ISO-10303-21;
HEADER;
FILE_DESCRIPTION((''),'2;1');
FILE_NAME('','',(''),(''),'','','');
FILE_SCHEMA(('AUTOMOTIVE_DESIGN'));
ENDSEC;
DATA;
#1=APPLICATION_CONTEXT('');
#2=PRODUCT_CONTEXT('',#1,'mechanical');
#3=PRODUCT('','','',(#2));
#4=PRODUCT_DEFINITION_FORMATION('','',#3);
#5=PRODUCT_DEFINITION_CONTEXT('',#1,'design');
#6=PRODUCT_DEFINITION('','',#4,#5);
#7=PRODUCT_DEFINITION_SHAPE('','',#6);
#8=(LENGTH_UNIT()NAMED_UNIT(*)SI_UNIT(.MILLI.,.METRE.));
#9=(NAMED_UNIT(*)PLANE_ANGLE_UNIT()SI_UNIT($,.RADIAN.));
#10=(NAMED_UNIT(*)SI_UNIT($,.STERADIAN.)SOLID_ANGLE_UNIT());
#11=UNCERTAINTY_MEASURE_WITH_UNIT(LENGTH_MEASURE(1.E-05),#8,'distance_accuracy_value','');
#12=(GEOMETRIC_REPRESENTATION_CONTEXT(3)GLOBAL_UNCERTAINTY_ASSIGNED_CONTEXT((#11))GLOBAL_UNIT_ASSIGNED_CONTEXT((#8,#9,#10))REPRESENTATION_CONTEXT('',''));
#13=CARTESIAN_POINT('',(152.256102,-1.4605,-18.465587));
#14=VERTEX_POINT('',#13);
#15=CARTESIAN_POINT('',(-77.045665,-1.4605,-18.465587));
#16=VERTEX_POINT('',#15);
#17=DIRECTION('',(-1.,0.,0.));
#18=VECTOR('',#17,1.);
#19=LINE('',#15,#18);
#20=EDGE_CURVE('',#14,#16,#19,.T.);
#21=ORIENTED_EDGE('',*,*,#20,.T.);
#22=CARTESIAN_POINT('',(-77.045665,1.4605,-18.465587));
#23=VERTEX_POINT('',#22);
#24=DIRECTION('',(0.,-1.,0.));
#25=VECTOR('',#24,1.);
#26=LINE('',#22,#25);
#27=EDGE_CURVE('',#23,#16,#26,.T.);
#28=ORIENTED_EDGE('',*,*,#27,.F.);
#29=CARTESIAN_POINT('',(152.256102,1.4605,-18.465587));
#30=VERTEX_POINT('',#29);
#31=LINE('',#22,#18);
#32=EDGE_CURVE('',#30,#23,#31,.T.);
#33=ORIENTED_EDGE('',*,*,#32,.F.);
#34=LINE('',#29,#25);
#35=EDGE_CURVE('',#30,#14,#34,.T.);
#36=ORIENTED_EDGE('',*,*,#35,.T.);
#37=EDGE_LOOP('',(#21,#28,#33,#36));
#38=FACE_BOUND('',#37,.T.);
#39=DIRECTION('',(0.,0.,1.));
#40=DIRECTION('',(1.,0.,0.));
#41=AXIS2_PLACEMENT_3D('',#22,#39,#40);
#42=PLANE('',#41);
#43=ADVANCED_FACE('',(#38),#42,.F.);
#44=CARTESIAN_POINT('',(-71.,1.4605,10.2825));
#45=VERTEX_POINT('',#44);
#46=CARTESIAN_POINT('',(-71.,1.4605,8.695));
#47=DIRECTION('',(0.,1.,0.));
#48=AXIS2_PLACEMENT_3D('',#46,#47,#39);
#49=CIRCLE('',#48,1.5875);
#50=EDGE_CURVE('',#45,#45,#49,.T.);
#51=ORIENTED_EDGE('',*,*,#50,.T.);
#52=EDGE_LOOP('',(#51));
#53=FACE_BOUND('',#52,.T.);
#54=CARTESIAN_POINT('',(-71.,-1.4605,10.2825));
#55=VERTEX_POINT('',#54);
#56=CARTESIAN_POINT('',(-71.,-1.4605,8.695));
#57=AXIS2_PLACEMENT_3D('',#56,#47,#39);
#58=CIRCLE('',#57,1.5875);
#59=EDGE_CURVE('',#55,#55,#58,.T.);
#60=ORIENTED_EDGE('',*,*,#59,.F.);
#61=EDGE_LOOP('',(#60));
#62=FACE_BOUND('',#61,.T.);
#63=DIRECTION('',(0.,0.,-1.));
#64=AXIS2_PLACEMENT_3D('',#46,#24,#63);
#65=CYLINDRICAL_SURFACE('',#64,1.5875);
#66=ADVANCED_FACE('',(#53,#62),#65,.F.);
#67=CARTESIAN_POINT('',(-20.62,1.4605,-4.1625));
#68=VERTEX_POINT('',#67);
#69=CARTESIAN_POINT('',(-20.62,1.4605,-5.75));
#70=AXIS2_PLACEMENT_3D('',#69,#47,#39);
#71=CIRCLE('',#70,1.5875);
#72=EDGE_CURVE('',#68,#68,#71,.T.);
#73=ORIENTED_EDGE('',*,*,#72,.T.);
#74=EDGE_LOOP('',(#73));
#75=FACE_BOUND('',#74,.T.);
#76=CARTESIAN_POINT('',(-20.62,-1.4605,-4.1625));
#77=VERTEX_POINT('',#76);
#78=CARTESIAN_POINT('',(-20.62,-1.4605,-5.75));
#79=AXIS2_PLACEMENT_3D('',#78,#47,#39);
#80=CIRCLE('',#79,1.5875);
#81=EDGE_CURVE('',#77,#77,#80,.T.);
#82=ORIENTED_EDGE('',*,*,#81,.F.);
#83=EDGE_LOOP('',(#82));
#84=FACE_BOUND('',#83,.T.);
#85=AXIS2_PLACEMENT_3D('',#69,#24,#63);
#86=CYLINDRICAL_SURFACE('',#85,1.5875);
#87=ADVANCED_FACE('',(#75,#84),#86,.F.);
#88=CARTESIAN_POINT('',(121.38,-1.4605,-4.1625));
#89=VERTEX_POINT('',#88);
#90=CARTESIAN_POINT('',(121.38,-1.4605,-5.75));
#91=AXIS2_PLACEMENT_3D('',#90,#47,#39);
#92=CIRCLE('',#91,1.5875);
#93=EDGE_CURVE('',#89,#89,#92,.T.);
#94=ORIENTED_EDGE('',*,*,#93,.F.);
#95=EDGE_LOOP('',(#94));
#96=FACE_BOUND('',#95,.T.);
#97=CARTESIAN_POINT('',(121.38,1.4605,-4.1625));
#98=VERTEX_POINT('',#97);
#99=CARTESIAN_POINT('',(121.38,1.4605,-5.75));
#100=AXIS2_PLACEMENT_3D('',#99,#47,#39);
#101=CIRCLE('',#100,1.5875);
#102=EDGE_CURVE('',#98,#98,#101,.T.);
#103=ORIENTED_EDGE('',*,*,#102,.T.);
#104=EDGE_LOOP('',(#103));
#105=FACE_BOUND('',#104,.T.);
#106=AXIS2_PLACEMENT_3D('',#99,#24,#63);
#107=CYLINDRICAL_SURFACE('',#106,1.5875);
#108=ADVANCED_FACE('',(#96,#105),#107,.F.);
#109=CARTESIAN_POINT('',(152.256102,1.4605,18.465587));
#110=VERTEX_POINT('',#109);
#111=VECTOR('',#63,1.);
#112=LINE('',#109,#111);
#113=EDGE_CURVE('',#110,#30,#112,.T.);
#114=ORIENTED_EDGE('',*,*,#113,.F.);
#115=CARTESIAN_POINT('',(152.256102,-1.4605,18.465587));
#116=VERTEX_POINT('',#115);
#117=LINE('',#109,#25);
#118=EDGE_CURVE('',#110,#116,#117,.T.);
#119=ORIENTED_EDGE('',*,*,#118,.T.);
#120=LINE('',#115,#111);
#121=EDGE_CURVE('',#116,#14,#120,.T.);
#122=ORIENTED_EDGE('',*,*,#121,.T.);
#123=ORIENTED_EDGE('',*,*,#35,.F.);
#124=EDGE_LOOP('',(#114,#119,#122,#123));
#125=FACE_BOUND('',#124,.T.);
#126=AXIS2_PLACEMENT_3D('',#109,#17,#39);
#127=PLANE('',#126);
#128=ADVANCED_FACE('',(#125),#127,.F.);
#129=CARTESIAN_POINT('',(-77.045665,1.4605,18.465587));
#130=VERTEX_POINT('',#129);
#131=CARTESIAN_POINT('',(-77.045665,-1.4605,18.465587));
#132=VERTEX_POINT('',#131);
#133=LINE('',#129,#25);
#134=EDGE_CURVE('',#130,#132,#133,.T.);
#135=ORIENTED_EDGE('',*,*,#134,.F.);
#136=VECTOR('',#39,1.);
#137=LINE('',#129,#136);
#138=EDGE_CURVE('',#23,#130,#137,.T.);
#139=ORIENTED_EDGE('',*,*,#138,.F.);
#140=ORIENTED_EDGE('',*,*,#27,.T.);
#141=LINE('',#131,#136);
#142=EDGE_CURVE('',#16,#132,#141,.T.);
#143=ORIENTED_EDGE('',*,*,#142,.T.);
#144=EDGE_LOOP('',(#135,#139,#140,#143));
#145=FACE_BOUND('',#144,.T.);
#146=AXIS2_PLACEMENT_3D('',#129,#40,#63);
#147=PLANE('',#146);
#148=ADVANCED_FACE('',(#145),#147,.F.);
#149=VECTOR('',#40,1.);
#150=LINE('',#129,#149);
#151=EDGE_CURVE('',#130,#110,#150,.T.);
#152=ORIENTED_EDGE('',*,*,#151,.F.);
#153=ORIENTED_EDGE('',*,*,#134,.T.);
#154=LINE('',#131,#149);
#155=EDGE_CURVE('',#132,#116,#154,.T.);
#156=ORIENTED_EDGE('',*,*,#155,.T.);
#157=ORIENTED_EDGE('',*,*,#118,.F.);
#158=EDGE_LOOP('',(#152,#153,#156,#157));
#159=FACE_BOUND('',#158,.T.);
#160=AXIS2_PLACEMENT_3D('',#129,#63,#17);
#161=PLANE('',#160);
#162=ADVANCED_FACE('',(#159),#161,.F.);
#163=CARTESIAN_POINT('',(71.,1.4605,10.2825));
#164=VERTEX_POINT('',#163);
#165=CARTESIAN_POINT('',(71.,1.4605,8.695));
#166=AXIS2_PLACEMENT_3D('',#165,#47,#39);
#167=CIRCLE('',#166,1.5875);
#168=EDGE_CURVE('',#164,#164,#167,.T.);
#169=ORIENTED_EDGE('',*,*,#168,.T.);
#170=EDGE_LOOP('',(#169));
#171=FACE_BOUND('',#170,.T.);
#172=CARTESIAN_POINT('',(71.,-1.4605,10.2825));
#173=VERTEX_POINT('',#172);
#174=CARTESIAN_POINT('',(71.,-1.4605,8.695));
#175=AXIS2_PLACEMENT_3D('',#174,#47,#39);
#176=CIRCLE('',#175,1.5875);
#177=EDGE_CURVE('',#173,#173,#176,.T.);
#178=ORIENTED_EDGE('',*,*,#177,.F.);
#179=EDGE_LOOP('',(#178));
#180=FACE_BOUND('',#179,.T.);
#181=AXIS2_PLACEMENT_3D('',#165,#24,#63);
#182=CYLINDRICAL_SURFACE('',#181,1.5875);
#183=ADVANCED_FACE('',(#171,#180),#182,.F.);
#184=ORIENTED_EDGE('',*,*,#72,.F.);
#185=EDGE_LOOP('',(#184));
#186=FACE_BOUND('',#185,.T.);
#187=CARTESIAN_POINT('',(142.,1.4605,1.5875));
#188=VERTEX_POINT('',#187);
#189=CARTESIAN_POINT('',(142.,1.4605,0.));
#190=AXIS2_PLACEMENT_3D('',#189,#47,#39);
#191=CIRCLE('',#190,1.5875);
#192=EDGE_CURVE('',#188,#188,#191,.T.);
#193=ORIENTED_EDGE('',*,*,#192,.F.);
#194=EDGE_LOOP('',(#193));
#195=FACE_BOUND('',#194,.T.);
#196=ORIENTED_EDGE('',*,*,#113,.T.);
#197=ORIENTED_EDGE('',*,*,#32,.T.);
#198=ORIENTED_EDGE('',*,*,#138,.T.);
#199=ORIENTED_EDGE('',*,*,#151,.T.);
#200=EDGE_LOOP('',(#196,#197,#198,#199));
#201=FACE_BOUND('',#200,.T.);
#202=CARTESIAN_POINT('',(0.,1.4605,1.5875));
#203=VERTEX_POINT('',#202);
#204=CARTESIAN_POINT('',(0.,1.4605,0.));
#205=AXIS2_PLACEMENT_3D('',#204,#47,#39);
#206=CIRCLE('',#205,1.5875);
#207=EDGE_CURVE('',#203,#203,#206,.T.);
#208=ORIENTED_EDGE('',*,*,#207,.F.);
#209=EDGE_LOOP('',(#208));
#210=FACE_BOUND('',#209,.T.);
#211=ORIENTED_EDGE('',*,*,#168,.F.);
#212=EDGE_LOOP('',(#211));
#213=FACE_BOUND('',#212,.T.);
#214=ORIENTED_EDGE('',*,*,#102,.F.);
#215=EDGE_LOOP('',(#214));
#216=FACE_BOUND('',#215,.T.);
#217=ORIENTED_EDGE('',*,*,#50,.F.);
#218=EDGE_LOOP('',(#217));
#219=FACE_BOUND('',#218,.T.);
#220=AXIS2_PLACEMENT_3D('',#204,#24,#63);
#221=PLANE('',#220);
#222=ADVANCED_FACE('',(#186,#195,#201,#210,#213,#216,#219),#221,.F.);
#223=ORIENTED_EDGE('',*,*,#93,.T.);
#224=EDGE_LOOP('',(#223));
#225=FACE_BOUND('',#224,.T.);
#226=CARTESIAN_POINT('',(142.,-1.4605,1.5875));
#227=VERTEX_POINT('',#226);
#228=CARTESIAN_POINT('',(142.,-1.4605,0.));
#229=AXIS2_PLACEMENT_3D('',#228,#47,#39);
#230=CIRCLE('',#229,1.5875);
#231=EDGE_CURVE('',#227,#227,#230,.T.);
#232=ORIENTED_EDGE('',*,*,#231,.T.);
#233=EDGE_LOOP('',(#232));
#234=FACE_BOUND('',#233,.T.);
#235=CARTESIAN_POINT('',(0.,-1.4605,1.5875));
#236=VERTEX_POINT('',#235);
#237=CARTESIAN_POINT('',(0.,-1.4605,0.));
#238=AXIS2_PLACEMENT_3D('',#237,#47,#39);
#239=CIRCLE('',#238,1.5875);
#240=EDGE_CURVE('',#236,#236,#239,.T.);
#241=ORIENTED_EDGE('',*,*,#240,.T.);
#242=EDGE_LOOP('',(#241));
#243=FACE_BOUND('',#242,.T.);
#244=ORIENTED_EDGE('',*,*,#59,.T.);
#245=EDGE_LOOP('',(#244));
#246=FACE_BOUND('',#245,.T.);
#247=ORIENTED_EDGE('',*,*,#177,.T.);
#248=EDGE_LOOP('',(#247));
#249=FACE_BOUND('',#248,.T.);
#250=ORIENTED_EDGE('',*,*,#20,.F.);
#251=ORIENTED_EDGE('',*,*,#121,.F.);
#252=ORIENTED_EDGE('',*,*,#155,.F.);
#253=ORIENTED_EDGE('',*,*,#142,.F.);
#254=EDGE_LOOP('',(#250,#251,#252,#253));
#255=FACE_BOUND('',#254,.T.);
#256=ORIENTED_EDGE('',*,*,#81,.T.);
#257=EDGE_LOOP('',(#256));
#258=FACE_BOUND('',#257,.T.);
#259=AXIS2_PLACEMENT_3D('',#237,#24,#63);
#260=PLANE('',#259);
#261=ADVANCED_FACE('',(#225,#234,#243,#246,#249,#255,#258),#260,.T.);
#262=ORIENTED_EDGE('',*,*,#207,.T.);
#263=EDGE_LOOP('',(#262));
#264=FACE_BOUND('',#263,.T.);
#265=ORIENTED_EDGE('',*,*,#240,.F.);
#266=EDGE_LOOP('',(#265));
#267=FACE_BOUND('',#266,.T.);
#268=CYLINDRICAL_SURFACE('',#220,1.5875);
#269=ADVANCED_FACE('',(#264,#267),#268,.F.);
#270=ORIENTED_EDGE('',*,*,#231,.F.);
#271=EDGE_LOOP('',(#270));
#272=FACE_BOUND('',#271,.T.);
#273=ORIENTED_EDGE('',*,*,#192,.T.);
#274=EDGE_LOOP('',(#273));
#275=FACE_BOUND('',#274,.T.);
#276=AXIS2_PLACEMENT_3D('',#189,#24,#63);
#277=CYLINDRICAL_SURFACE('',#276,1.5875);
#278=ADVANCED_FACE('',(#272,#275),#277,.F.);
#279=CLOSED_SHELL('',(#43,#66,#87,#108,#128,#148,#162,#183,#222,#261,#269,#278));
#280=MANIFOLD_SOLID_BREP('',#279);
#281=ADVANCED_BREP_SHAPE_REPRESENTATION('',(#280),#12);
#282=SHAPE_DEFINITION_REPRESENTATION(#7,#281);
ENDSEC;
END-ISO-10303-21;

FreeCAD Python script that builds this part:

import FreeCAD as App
import Part
import Sketcher
from FreeCAD import Vector
Q = App.Units.Quantity

doc = App.newDocument("Part")
body = doc.addObject("PartDesign::Body", "Body")

# Sketch on XZ plane
sketch1 = body.newObject("Sketcher::SketchObject", "Sketch")
sketch1.AttachmentSupport = (doc.getObject("XZ_Plane"), [""])
sketch1.MapMode = "FlatFace"
sketch1.addGeometry([
    Part.LineSegment(Vector(-77, -18.5, 0), Vector(-77, 18.5, 0)),  # 0
    Part.LineSegment(Vector(-77, 18.5, 0), Vector(152.3, 18.5, 0)),  # 1
    Part.LineSegment(Vector(152.3, 18.5, 0), Vector(152.3, -18.5, 0)),  # 2
    Part.LineSegment(Vector(152.3, -18.5, 0), Vector(-77, -18.5, 0)),  # 3
    Part.Circle(Vector(-71, 8.7, 0), Vector(0, 0, 1), 1.6),  # 4
    Part.Circle(Vector(71, 8.7, 0), Vector(0, 0, 1), 1.6),  # 5
    Part.Circle(Vector(0, 0, 0), Vector(0, 0, 1), 1.6),  # 6
    Part.Circle(Vector(-20.6, -5.8, 0), Vector(0, 0, 1), 1.6),  # 7
    Part.Circle(Vector(142, 0, 0), Vector(0, 0, 1), 1.6),  # 8
    Part.Circle(Vector(121.4, -5.7, 0), Vector(0, 0, 1), 1.6),  # 9
], False)
sketch1.addConstraint([
    Sketcher.Constraint("Coincident", 0, 2, 1, 1),
    Sketcher.Constraint("Coincident", 1, 2, 2, 1),
    Sketcher.Constraint("Coincident", 2, 2, 3, 1),
    Sketcher.Constraint("Coincident", 3, 2, 0, 1),
    Sketcher.Constraint("Vertical", 0),
    Sketcher.Constraint("Horizontal", 1),
    Sketcher.Constraint("Vertical", 2),
    Sketcher.Constraint("Horizontal", 3),
    Sketcher.Constraint("Coincident", 6, 3, -1, 1),
    Sketcher.Constraint("Equal", 4, 5),
    Sketcher.Constraint("Equal", 5, 6),
    Sketcher.Constraint("Equal", 6, 7),
    Sketcher.Constraint("Equal", 7, 8),
    Sketcher.Constraint("Equal", 8, 9),
    Sketcher.Constraint("Symmetric", 4, 3, 5, 3, -2),
    Sketcher.Constraint("PointOnObject", 8, 3, -1),
    Sketcher.Constraint("Horizontal", 7, 3, 9, 3),
    Sketcher.Constraint("Diameter", 4, Q("0.125 in")),
    Sketcher.Constraint("DistanceX", 4, 3, -1, 1, Q("71 mm")),
    Sketcher.Constraint("DistanceY", -1, 1, 4, 3, Q("8.695 mm")),
    Sketcher.Constraint("DistanceX", 7, 3, -1, 1, Q("20.62 mm")),
    Sketcher.Constraint("DistanceY", 7, 3, -1, 1, Q("5.75 mm")),
    Sketcher.Constraint("DistanceX", -1, 1, 8, 3, Q("142 mm")),
    Sketcher.Constraint("DistanceX", -1, 1, 9, 3, Q("121.38 mm")),
    Sketcher.Constraint("DistanceX", -1, 1, 1, 2, Q("152.256102 mm")),
    Sketcher.Constraint("DistanceX", 1, 1, 1, 2, Q("229.301766 mm")),
    Sketcher.Constraint("DistanceY", 0, 1, 0, 2, Q("36.931173 mm")),
    Sketcher.Constraint("DistanceY", -1, 1, 0, 2, Q("18.465587 mm")),
])
pad1 = body.newObject("PartDesign::Pad", "Pad")
pad1.Profile = sketch1
pad1.Length = Q("0.115 in")
pad1.Midplane = True

doc.recompute()
